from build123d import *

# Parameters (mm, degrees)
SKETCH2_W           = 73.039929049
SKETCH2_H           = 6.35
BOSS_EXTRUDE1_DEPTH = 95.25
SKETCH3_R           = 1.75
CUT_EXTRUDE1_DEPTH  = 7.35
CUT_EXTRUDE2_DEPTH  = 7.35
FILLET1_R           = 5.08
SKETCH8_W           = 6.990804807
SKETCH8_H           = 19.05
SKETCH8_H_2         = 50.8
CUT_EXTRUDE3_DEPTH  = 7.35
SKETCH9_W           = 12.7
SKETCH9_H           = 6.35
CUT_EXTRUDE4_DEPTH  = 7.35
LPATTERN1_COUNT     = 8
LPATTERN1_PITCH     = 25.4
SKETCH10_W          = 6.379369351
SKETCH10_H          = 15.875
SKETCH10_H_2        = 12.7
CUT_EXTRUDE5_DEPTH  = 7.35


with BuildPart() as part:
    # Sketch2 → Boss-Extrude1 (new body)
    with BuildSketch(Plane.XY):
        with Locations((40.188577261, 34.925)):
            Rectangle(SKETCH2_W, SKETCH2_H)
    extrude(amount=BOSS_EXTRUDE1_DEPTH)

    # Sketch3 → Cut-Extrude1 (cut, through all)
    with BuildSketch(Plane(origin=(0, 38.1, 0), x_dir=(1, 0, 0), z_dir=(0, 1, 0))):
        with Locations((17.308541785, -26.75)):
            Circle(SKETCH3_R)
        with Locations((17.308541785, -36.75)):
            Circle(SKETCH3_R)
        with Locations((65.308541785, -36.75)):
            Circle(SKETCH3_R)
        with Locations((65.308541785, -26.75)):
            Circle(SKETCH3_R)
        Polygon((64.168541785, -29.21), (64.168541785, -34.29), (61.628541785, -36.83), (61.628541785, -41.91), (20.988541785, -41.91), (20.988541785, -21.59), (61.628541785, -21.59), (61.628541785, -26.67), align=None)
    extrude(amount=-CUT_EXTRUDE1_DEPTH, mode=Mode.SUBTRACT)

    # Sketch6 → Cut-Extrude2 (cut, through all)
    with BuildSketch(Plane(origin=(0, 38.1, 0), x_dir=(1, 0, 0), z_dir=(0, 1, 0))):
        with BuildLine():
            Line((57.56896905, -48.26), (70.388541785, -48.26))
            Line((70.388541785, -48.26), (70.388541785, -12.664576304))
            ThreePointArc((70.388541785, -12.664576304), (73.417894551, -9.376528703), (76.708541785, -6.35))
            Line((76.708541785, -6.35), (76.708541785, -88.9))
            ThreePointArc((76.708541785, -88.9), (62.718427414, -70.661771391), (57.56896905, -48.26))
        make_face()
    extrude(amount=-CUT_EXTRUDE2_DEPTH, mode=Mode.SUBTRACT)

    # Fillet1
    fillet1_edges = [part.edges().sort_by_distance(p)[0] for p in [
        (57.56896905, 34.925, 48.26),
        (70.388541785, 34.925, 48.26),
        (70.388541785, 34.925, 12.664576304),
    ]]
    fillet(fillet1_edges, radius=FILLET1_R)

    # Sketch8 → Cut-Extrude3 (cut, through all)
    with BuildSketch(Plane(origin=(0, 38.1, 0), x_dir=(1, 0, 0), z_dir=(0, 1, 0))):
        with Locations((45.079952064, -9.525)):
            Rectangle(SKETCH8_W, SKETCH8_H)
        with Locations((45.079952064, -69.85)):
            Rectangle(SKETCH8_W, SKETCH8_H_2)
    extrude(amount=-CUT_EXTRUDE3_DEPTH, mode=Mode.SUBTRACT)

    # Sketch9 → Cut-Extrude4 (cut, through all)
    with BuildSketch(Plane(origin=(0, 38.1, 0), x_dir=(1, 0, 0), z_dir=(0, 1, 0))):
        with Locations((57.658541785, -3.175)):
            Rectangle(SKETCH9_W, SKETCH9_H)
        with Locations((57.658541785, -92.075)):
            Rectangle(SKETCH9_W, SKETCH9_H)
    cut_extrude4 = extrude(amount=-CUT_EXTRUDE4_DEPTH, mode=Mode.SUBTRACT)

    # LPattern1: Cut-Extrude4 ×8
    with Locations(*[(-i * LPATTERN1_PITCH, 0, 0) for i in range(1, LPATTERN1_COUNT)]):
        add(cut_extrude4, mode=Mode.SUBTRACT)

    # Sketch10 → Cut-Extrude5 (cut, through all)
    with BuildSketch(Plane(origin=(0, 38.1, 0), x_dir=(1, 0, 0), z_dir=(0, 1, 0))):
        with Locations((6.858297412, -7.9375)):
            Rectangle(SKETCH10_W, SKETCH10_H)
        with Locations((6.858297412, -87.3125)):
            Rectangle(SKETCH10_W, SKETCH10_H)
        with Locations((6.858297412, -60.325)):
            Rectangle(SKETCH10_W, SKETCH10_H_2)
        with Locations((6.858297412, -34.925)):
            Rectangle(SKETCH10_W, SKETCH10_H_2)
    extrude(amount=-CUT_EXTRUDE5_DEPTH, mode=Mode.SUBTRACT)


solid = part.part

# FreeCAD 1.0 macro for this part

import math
import FreeCAD as App
import Part
import Sketcher
Q = App.Units.Quantity


def edges_at(feature, points):
    """Names of the edges that pass closest to the given points."""
    edges = feature.Shape.Edges
    near = lambda p: min(range(len(edges)), key=lambda i: edges[i].distToShape(Part.Vertex(*p))[0])
    return sorted({f"Edge{near(p) + 1}" for p in points})

doc = App.newDocument("Part")
body = doc.addObject("PartDesign::Body", "Body")

sketch1 = doc.addObject("Sketcher::SketchObject", "Sketch")
body.addObject(sketch1)
sketch1.AttachmentSupport = (doc.XY_Plane, [""])
sketch1.MapMode = "FlatFace"
sketch1.addGeometry([
    Part.LineSegment(App.Vector(4, 38, 0), App.Vector(4, 32, 0)),
    Part.LineSegment(App.Vector(4, 32, 0), App.Vector(77, 32, 0)),
    Part.LineSegment(App.Vector(77, 32, 0), App.Vector(77, 38, 0)),
    Part.LineSegment(App.Vector(77, 38, 0), App.Vector(4, 38, 0)),
], False)
sketch1.addConstraint([
    Sketcher.Constraint("Coincident", 0, 2, 1, 1),
    Sketcher.Constraint("Coincident", 1, 2, 2, 1),
    Sketcher.Constraint("Coincident", 2, 2, 3, 1),
    Sketcher.Constraint("Coincident", 3, 2, 0, 1),
    Sketcher.Constraint("Vertical", 0),
    Sketcher.Constraint("Horizontal", 1),
    Sketcher.Constraint("Vertical", 2),
    Sketcher.Constraint("Horizontal", 3),
    Sketcher.Constraint("DistanceY", 0, 2, 0, 1, Q("0.25 in")),
    Sketcher.Constraint("DistanceY", -1, 1, 2, 2, Q("1.5 in")),
    Sketcher.Constraint("DistanceX", 1, 1, 1, 2, 73.039929),
    Sketcher.Constraint("DistanceX", -1, 1, 1, 2, 76.708542),
])
pad1 = doc.addObject("PartDesign::Pad", "Pad")
body.addObject(pad1)
pad1.Profile = sketch1
pad1.Length = Q("3.75 in")

sketch2 = doc.addObject("Sketcher::SketchObject", "Sketch001")
body.addObject(sketch2)
sketch2.AttachmentSupport = (doc.XZ_Plane, [""])
sketch2.MapMode = "FlatFace"
sketch2.AttachmentOffset = App.Placement(App.Vector(0, 0, -1.5 * 25.4), App.Rotation())
sketch2.addGeometry([
    Part.Circle(App.Vector(17.3, 26.8, 0), App.Vector(0, 0, 1), 1.8),
    Part.Circle(App.Vector(17.3, 36.8, 0), App.Vector(0, 0, 1), 1.8),
    Part.Circle(App.Vector(65.3, 36.8, 0), App.Vector(0, 0, 1), 1.8),
    Part.Circle(App.Vector(65.3, 26.8, 0), App.Vector(0, 0, 1), 1.8),
    Part.LineSegment(App.Vector(64.2, 34.3, 0), App.Vector(64.2, 29.2, 0)),
    Part.LineSegment(App.Vector(64.2, 29.2, 0), App.Vector(61.6, 26.7, 0)),
    Part.LineSegment(App.Vector(61.6, 26.7, 0), App.Vector(61.6, 21.6, 0)),
    Part.LineSegment(App.Vector(61.6, 21.6, 0), App.Vector(21, 21.6, 0)),
    Part.LineSegment(App.Vector(21, 21.6, 0), App.Vector(21, 41.9, 0)),
    Part.LineSegment(App.Vector(21, 41.9, 0), App.Vector(61.6, 41.9, 0)),
    Part.LineSegment(App.Vector(61.6, 41.9, 0), App.Vector(61.6, 36.8, 0)),
    Part.LineSegment(App.Vector(61.6, 36.8, 0), App.Vector(64.2, 34.3, 0)),
], False)
sketch2.addConstraint([
    Sketcher.Constraint("Coincident", 4, 2, 5, 1),
    Sketcher.Constraint("Coincident", 5, 2, 6, 1),
    Sketcher.Constraint("Coincident", 6, 2, 7, 1),
    Sketcher.Constraint("Coincident", 7, 2, 8, 1),
    Sketcher.Constraint("Coincident", 8, 2, 9, 1),
    Sketcher.Constraint("Coincident", 9, 2, 10, 1),
    Sketcher.Constraint("Coincident", 10, 2, 11, 1),
    Sketcher.Constraint("Coincident", 11, 2, 4, 1),
    Sketcher.Constraint("Vertical", 4),
    Sketcher.Constraint("Vertical", 6),
    Sketcher.Constraint("Horizontal", 7),
    Sketcher.Constraint("Vertical", 8),
    Sketcher.Constraint("Horizontal", 9),
    Sketcher.Constraint("Vertical", 10),
    Sketcher.Constraint("Equal", 0, 1),
    Sketcher.Constraint("Equal", 1, 2),
    Sketcher.Constraint("Equal", 2, 3),
    Sketcher.Constraint("Perpendicular", 5, 11),
    Sketcher.Constraint("Horizontal", 1, 3, 2, 3),
    Sketcher.Constraint("Horizontal", 0, 3, 3, 3),
    Sketcher.Constraint("Vertical", 0, 3, 1, 3),
    Sketcher.Constraint("Vertical", 2, 3, 3, 3),
    Sketcher.Constraint("Vertical", 6, 2, 9, 2),
    Sketcher.Constraint("Equal", 4, 6),
    Sketcher.Constraint("Equal", 6, 10),
    Sketcher.Constraint("Equal", 5, 11),
    Sketcher.Constraint("DistanceX", 7, 2, 7, 1, Q("1.6 in")),
    Sketcher.Constraint("DistanceY", 4, 2, 4, 1, Q("0.2 in")),
    Sketcher.Constraint("DistanceY", 8, 1, 8, 2, Q("0.8 in")),
    Sketcher.Constraint("Diameter", 0, 3.5),
    Sketcher.Constraint("DistanceY", -1, 1, 4, 2, Q("1.15 in")),
    Sketcher.Constraint("DistanceY", -1, 1, 0, 3, 26.75),
    Sketcher.Constraint("DistanceY", -1, 1, 1, 3, 36.75),
    Sketcher.Constraint("DistanceX", 1, 3, 2, 3, 48.0),
    Sketcher.Constraint("DistanceX", 4, 2, 3, 3, 1.14),
    Sketcher.Constraint("DistanceX", -1, 1, 0, 3, 17.308542),
])
pocket1 = doc.addObject("PartDesign::Pocket", "Pocket")
body.addObject(pocket1)
pocket1.Profile = sketch2
pocket1.Type = "ThroughAll"
pocket1.Reversed = True

sketch3 = doc.addObject("Sketcher::SketchObject", "Sketch002")
body.addObject(sketch3)
sketch3.AttachmentSupport = (doc.XZ_Plane, [""])
sketch3.MapMode = "FlatFace"
sketch3.AttachmentOffset = App.Placement(App.Vector(0, 0, -1.5 * 25.4), App.Rotation())
sketch3.addGeometry([
    Part.LineSegment(App.Vector(70, 48, 0), App.Vector(58, 48, 0)),
    Part.ArcOfCircle(Part.Circle(App.Vector(112, 48, 0), App.Vector(0, 0, 1), 54), math.radians(130), math.radians(179)),
    Part.LineSegment(App.Vector(77, 89, 0), App.Vector(77, 6, 0)),
    Part.ArcOfCircle(Part.Circle(App.Vector(112, 48, 0), App.Vector(0, 0, 1), 54), math.radians(-139.71), math.radians(-130.24)),
    Part.LineSegment(App.Vector(70, 13, 0), App.Vector(70, 48, 0)),
], False)
sketch3.addConstraint([
    Sketcher.Constraint("Coincident", 0, 2, 1, 2),
    Sketcher.Constraint("Coincident", 1, 1, 2, 1),
    Sketcher.Constraint("Coincident", 2, 2, 3, 2),
    Sketcher.Constraint("Coincident", 3, 1, 4, 1),
    Sketcher.Constraint("Coincident", 4, 2, 0, 1),
    Sketcher.Constraint("Horizontal", 0),
    Sketcher.Constraint("Vertical", 2),
    Sketcher.Constraint("Vertical", 4),
    Sketcher.Constraint("Coincident", 3, 3, 1, 3),
    Sketcher.Constraint("Equal", 1, 3),
    Sketcher.Constraint("DistanceY", 2, 2, 2, 1, Q("3.25 in")),
    Sketcher.Constraint("DistanceY", -1, 1, 0, 2, Q("1.9 in")),
    Sketcher.Constraint("DistanceY", -1, 1, 1, 1, Q("3.5 in")),
    Sketcher.Constraint("Radius", 1, 54.068302),
    Sketcher.Constraint("DistanceX", 3, 1, 2, 2, 6.32),
    Sketcher.Constraint("DistanceX", -1, 1, 1, 3, 111.633542),
])
pocket2 = doc.addObject("PartDesign::Pocket", "Pocket001")
body.addObject(pocket2)
pocket2.Profile = sketch3
pocket2.Type = "ThroughAll"
pocket2.Reversed = True
doc.recompute()

fillet = doc.addObject("PartDesign::Fillet", "Fillet")
body.addObject(fillet)
fillet.Base = (pocket2, edges_at(pocket2, [(57.569, 34.925, 48.26), (70.389, 34.925, 48.26), (70.389, 34.925, 12.665)]))
fillet.Radius = Q("0.2 in")

sketch4 = doc.addObject("Sketcher::SketchObject", "Sketch003")
body.addObject(sketch4)
sketch4.AttachmentSupport = (doc.XZ_Plane, [""])
sketch4.MapMode = "FlatFace"
sketch4.AttachmentOffset = App.Placement(App.Vector(0, 0, -1.5 * 25.4), App.Rotation())
sketch4.addGeometry([
    Part.LineSegment(App.Vector(42, 0, 0), App.Vector(42, 19, 0)),
    Part.LineSegment(App.Vector(42, 19, 0), App.Vector(49, 19, 0)),
    Part.LineSegment(App.Vector(49, 19, 0), App.Vector(49, 0, 0)),
    Part.LineSegment(App.Vector(49, 0, 0), App.Vector(42, 0, 0)),
    Part.LineSegment(App.Vector(42, 44, 0), App.Vector(42, 95, 0)),
    Part.LineSegment(App.Vector(42, 95, 0), App.Vector(49, 95, 0)),
    Part.LineSegment(App.Vector(49, 95, 0), App.Vector(49, 44, 0)),
    Part.LineSegment(App.Vector(49, 44, 0), App.Vector(42, 44, 0)),
], False)
sketch4.addConstraint([
    Sketcher.Constraint("Coincident", 0, 2, 1, 1),
    Sketcher.Constraint("Coincident", 1, 2, 2, 1),
    Sketcher.Constraint("Coincident", 2, 2, 3, 1),
    Sketcher.Constraint("Coincident", 3, 2, 0, 1),
    Sketcher.Constraint("Coincident", 4, 2, 5, 1),
    Sketcher.Constraint("Coincident", 5, 2, 6, 1),
    Sketcher.Constraint("Coincident", 6, 2, 7, 1),
    Sketcher.Constraint("Coincident", 7, 2, 4, 1),
    Sketcher.Constraint("Vertical", 0),
    Sketcher.Constraint("Horizontal", 1),
    Sketcher.Constraint("Vertical", 2),
    Sketcher.Constraint("Horizontal", 3),
    Sketcher.Constraint("Vertical", 4),
    Sketcher.Constraint("Horizontal", 5),
    Sketcher.Constraint("Vertical", 6),
    Sketcher.Constraint("Horizontal", 7),
    Sketcher.Constraint("PointOnObject", 2, 2, -1),
    Sketcher.Constraint("Vertical", 3, 2, 4, 2),
    Sketcher.Constraint("Vertical", 2, 2, 5, 2),
    Sketcher.Constraint("DistanceY", 4, 1, 4, 2, Q("2 in")),
    Sketcher.Constraint("DistanceY", 0, 2, 4, 2, Q("3 in")),
    Sketcher.Constraint("DistanceY", 0, 1, 0, 2, Q("0.75 in")),
    Sketcher.Constraint("DistanceX", 1, 1, 1, 2, 6.990805),
    Sketcher.Constraint("DistanceX", -1, 1, 0, 2, 41.58455),
])
pocket3 = doc.addObject("PartDesign::Pocket", "Pocket002")
body.addObject(pocket3)
pocket3.Profile = sketch4
pocket3.Type = "ThroughAll"
pocket3.Reversed = True

sketch5 = doc.addObject("Sketcher::SketchObject", "Sketch004")
body.addObject(sketch5)
sketch5.AttachmentSupport = (doc.XZ_Plane, [""])
sketch5.MapMode = "FlatFace"
sketch5.AttachmentOffset = App.Placement(App.Vector(0, 0, -1.5 * 25.4), App.Rotation())
sketch5.addGeometry([
    Part.LineSegment(App.Vector(51, 0, 0), App.Vector(51, 6, 0)),
    Part.LineSegment(App.Vector(51, 6, 0), App.Vector(64, 6, 0)),
    Part.LineSegment(App.Vector(64, 6, 0), App.Vector(64, 0, 0)),
    Part.LineSegment(App.Vector(64, 0, 0), App.Vector(51, 0, 0)),
    Part.LineSegment(App.Vector(51, 89, 0), App.Vector(51, 95, 0)),
    Part.LineSegment(App.Vector(51, 95, 0), App.Vector(64, 95, 0)),
    Part.LineSegment(App.Vector(64, 95, 0), App.Vector(64, 89, 0)),
    Part.LineSegment(App.Vector(64, 89, 0), App.Vector(51, 89, 0)),
], False)
sketch5.addConstraint([
    Sketcher.Constraint("Coincident", 0, 2, 1, 1),
    Sketcher.Constraint("Coincident", 1, 2, 2, 1),
    Sketcher.Constraint("Coincident", 2, 2, 3, 1),
    Sketcher.Constraint("Coincident", 3, 2, 0, 1),
    Sketcher.Constraint("Coincident", 4, 2, 5, 1),
    Sketcher.Constraint("Coincident", 5, 2, 6, 1),
    Sketcher.Constraint("Coincident", 6, 2, 7, 1),
    Sketcher.Constraint("Coincident", 7, 2, 4, 1),
    Sketcher.Constraint("Vertical", 0),
    Sketcher.Constraint("Horizontal", 1),
    Sketcher.Constraint("Vertical", 2),
    Sketcher.Constraint("Horizontal", 3),
    Sketcher.Constraint("Vertical", 4),
    Sketcher.Constraint("Horizontal", 5),
    Sketcher.Constraint("Vertical", 6),
    Sketcher.Constraint("Horizontal", 7),
    Sketcher.Constraint("PointOnObject", 2, 2, -1),
    Sketcher.Constraint("Vertical", 3, 2, 4, 2),
    Sketcher.Constraint("Vertical", 2, 2, 5, 2),
    Sketcher.Constraint("Equal", 2, 4),
    Sketcher.Constraint("DistanceX", 1, 1, 1, 2, Q("0.5 in")),
    Sketcher.Constraint("DistanceY", 0, 1, 0, 2, Q("0.25 in")),
    Sketcher.Constraint("DistanceY", -1, 1, 6, 2, Q("3.5 in")),
    Sketcher.Constraint("DistanceX", -1, 1, 0, 2, 51.308542),
])
pocket4 = doc.addObject("PartDesign::Pocket", "Pocket003")
body.addObject(pocket4)
pocket4.Profile = sketch5
pocket4.Type = "ThroughAll"
pocket4.Reversed = True
doc.recompute()

linearpattern = doc.addObject("PartDesign::LinearPattern", "LinearPattern")
body.addObject(linearpattern)
linearpattern.Originals = [pocket4]
linearpattern.Direction = (doc.X_Axis, [""])
linearpattern.Mode = "offset"
linearpattern.Offset = Q("1 in")
linearpattern.Occurrences = 8
linearpattern.Reversed = True
body.Tip = linearpattern

sketch6 = doc.addObject("Sketcher::SketchObject", "Sketch005")
body.addObject(sketch6)
sketch6.AttachmentSupport = (doc.XZ_Plane, [""])
sketch6.MapMode = "FlatFace"
sketch6.AttachmentOffset = App.Placement(App.Vector(0, 0, -1.5 * 25.4), App.Rotation())
sketch6.addGeometry([
    Part.LineSegment(App.Vector(4, 0, 0), App.Vector(4, 16, 0)),
    Part.LineSegment(App.Vector(4, 16, 0), App.Vector(10, 16, 0)),
    Part.LineSegment(App.Vector(10, 16, 0), App.Vector(10, 0, 0)),
    Part.LineSegment(App.Vector(10, 0, 0), App.Vector(4, 0, 0)),
    Part.LineSegment(App.Vector(4, 79, 0), App.Vector(4, 95, 0)),
    Part.LineSegment(App.Vector(4, 95, 0), App.Vector(10, 95, 0)),
    Part.LineSegment(App.Vector(10, 95, 0), App.Vector(10, 79, 0)),
    Part.LineSegment(App.Vector(10, 79, 0), App.Vector(4, 79, 0)),
    Part.LineSegment(App.Vector(4, 54, 0), App.Vector(4, 67, 0)),
    Part.LineSegment(App.Vector(4, 67, 0), App.Vector(10, 67, 0)),
    Part.LineSegment(App.Vector(10, 67, 0), App.Vector(10, 54, 0)),
    Part.LineSegment(App.Vector(10, 54, 0), App.Vector(4, 54, 0)),
    Part.LineSegment(App.Vector(4, 29, 0), App.Vector(4, 41, 0)),
    Part.LineSegment(App.Vector(4, 41, 0), App.Vector(10, 41, 0)),
    Part.LineSegment(App.Vector(10, 41, 0), App.Vector(10, 29, 0)),
    Part.LineSegment(App.Vector(10, 29, 0), App.Vector(4, 29, 0)),
], False)
sketch6.addConstraint([
    Sketcher.Constraint("Coincident", 0, 2, 1, 1),
    Sketcher.Constraint("Coincident", 1, 2, 2, 1),
    Sketcher.Constraint("Coincident", 2, 2, 3, 1),
    Sketcher.Constraint("Coincident", 3, 2, 0, 1),
    Sketcher.Constraint("Coincident", 4, 2, 5, 1),
    Sketcher.Constraint("Coincident", 5, 2, 6, 1),
    Sketcher.Constraint("Coincident", 6, 2, 7, 1),
    Sketcher.Constraint("Coincident", 7, 2, 4, 1),
    Sketcher.Constraint("Coincident", 8, 2, 9, 1),
    Sketcher.Constraint("Coincident", 9, 2, 10, 1),
    Sketcher.Constraint("Coincident", 10, 2, 11, 1),
    Sketcher.Constraint("Coincident", 11, 2, 8, 1),
    Sketcher.Constraint("Coincident", 12, 2, 13, 1),
    Sketcher.Constraint("Coincident", 13, 2, 14, 1),
    Sketcher.Constraint("Coincident", 14, 2, 15, 1),
    Sketcher.Constraint("Coincident", 15, 2, 12, 1),
    Sketcher.Constraint("Vertical", 0),
    Sketcher.Constraint("Horizontal", 1),
    Sketcher.Constraint("Vertical", 2),
    Sketcher.Constraint("Horizontal", 3),
    Sketcher.Constraint("Vertical", 4),
    Sketcher.Constraint("Horizontal", 5),
    Sketcher.Constraint("Vertical", 6),
    Sketcher.Constraint("Horizontal", 7),
    Sketcher.Constraint("Vertical", 8),
    Sketcher.Constraint("Horizontal", 9),
    Sketcher.Constraint("Vertical", 10),
    Sketcher.Constraint("Horizontal", 11),
    Sketcher.Constraint("Vertical", 12),
    Sketcher.Constraint("Horizontal", 13),
    Sketcher.Constraint("Vertical", 14),
    Sketcher.Constraint("Horizontal", 15),
    Sketcher.Constraint("PointOnObject", 2, 2, -1),
    Sketcher.Constraint("Vertical", 3, 2, 4, 2),
    Sketcher.Constraint("Vertical", 2, 2, 5, 2),
    Sketcher.Constraint("Vertical", 7, 2, 8, 2),
    Sketcher.Constraint("Vertical", 6, 2, 9, 2),
    Sketcher.Constraint("Vertical", 11, 2, 12, 2),
    Sketcher.Constraint("Vertical", 10, 2, 13, 2),
    Sketcher.Constraint("Equal", 2, 4),
    Sketcher.Constraint("Equal", 10, 12),
    Sketcher.Constraint("DistanceY", 8, 1, 8, 2, Q("0.5 in")),
    Sketcher.Constraint("DistanceY", 0, 2, 8, 2, Q("2 in")),
    Sketcher.Constraint("DistanceY", 10, 2, 6, 2, Q("1 in")),
    Sketcher.Constraint("DistanceY", 0, 2, 12, 2, Q("1 in")),
    Sketcher.Constraint("DistanceY", 0, 1, 0, 2, Q("0.625 in")),
    Sketcher.Constraint("DistanceX", 1, 1, 1, 2, 6.379369),
    Sketcher.Constraint("DistanceX", -1, 1, 0, 2, 3.668613),
])
pocket5 = doc.addObject("PartDesign::Pocket", "Pocket004")
body.addObject(pocket5)
pocket5.Profile = sketch6
pocket5.Type = "ThroughAll"
pocket5.Reversed = True

doc.recompute()
